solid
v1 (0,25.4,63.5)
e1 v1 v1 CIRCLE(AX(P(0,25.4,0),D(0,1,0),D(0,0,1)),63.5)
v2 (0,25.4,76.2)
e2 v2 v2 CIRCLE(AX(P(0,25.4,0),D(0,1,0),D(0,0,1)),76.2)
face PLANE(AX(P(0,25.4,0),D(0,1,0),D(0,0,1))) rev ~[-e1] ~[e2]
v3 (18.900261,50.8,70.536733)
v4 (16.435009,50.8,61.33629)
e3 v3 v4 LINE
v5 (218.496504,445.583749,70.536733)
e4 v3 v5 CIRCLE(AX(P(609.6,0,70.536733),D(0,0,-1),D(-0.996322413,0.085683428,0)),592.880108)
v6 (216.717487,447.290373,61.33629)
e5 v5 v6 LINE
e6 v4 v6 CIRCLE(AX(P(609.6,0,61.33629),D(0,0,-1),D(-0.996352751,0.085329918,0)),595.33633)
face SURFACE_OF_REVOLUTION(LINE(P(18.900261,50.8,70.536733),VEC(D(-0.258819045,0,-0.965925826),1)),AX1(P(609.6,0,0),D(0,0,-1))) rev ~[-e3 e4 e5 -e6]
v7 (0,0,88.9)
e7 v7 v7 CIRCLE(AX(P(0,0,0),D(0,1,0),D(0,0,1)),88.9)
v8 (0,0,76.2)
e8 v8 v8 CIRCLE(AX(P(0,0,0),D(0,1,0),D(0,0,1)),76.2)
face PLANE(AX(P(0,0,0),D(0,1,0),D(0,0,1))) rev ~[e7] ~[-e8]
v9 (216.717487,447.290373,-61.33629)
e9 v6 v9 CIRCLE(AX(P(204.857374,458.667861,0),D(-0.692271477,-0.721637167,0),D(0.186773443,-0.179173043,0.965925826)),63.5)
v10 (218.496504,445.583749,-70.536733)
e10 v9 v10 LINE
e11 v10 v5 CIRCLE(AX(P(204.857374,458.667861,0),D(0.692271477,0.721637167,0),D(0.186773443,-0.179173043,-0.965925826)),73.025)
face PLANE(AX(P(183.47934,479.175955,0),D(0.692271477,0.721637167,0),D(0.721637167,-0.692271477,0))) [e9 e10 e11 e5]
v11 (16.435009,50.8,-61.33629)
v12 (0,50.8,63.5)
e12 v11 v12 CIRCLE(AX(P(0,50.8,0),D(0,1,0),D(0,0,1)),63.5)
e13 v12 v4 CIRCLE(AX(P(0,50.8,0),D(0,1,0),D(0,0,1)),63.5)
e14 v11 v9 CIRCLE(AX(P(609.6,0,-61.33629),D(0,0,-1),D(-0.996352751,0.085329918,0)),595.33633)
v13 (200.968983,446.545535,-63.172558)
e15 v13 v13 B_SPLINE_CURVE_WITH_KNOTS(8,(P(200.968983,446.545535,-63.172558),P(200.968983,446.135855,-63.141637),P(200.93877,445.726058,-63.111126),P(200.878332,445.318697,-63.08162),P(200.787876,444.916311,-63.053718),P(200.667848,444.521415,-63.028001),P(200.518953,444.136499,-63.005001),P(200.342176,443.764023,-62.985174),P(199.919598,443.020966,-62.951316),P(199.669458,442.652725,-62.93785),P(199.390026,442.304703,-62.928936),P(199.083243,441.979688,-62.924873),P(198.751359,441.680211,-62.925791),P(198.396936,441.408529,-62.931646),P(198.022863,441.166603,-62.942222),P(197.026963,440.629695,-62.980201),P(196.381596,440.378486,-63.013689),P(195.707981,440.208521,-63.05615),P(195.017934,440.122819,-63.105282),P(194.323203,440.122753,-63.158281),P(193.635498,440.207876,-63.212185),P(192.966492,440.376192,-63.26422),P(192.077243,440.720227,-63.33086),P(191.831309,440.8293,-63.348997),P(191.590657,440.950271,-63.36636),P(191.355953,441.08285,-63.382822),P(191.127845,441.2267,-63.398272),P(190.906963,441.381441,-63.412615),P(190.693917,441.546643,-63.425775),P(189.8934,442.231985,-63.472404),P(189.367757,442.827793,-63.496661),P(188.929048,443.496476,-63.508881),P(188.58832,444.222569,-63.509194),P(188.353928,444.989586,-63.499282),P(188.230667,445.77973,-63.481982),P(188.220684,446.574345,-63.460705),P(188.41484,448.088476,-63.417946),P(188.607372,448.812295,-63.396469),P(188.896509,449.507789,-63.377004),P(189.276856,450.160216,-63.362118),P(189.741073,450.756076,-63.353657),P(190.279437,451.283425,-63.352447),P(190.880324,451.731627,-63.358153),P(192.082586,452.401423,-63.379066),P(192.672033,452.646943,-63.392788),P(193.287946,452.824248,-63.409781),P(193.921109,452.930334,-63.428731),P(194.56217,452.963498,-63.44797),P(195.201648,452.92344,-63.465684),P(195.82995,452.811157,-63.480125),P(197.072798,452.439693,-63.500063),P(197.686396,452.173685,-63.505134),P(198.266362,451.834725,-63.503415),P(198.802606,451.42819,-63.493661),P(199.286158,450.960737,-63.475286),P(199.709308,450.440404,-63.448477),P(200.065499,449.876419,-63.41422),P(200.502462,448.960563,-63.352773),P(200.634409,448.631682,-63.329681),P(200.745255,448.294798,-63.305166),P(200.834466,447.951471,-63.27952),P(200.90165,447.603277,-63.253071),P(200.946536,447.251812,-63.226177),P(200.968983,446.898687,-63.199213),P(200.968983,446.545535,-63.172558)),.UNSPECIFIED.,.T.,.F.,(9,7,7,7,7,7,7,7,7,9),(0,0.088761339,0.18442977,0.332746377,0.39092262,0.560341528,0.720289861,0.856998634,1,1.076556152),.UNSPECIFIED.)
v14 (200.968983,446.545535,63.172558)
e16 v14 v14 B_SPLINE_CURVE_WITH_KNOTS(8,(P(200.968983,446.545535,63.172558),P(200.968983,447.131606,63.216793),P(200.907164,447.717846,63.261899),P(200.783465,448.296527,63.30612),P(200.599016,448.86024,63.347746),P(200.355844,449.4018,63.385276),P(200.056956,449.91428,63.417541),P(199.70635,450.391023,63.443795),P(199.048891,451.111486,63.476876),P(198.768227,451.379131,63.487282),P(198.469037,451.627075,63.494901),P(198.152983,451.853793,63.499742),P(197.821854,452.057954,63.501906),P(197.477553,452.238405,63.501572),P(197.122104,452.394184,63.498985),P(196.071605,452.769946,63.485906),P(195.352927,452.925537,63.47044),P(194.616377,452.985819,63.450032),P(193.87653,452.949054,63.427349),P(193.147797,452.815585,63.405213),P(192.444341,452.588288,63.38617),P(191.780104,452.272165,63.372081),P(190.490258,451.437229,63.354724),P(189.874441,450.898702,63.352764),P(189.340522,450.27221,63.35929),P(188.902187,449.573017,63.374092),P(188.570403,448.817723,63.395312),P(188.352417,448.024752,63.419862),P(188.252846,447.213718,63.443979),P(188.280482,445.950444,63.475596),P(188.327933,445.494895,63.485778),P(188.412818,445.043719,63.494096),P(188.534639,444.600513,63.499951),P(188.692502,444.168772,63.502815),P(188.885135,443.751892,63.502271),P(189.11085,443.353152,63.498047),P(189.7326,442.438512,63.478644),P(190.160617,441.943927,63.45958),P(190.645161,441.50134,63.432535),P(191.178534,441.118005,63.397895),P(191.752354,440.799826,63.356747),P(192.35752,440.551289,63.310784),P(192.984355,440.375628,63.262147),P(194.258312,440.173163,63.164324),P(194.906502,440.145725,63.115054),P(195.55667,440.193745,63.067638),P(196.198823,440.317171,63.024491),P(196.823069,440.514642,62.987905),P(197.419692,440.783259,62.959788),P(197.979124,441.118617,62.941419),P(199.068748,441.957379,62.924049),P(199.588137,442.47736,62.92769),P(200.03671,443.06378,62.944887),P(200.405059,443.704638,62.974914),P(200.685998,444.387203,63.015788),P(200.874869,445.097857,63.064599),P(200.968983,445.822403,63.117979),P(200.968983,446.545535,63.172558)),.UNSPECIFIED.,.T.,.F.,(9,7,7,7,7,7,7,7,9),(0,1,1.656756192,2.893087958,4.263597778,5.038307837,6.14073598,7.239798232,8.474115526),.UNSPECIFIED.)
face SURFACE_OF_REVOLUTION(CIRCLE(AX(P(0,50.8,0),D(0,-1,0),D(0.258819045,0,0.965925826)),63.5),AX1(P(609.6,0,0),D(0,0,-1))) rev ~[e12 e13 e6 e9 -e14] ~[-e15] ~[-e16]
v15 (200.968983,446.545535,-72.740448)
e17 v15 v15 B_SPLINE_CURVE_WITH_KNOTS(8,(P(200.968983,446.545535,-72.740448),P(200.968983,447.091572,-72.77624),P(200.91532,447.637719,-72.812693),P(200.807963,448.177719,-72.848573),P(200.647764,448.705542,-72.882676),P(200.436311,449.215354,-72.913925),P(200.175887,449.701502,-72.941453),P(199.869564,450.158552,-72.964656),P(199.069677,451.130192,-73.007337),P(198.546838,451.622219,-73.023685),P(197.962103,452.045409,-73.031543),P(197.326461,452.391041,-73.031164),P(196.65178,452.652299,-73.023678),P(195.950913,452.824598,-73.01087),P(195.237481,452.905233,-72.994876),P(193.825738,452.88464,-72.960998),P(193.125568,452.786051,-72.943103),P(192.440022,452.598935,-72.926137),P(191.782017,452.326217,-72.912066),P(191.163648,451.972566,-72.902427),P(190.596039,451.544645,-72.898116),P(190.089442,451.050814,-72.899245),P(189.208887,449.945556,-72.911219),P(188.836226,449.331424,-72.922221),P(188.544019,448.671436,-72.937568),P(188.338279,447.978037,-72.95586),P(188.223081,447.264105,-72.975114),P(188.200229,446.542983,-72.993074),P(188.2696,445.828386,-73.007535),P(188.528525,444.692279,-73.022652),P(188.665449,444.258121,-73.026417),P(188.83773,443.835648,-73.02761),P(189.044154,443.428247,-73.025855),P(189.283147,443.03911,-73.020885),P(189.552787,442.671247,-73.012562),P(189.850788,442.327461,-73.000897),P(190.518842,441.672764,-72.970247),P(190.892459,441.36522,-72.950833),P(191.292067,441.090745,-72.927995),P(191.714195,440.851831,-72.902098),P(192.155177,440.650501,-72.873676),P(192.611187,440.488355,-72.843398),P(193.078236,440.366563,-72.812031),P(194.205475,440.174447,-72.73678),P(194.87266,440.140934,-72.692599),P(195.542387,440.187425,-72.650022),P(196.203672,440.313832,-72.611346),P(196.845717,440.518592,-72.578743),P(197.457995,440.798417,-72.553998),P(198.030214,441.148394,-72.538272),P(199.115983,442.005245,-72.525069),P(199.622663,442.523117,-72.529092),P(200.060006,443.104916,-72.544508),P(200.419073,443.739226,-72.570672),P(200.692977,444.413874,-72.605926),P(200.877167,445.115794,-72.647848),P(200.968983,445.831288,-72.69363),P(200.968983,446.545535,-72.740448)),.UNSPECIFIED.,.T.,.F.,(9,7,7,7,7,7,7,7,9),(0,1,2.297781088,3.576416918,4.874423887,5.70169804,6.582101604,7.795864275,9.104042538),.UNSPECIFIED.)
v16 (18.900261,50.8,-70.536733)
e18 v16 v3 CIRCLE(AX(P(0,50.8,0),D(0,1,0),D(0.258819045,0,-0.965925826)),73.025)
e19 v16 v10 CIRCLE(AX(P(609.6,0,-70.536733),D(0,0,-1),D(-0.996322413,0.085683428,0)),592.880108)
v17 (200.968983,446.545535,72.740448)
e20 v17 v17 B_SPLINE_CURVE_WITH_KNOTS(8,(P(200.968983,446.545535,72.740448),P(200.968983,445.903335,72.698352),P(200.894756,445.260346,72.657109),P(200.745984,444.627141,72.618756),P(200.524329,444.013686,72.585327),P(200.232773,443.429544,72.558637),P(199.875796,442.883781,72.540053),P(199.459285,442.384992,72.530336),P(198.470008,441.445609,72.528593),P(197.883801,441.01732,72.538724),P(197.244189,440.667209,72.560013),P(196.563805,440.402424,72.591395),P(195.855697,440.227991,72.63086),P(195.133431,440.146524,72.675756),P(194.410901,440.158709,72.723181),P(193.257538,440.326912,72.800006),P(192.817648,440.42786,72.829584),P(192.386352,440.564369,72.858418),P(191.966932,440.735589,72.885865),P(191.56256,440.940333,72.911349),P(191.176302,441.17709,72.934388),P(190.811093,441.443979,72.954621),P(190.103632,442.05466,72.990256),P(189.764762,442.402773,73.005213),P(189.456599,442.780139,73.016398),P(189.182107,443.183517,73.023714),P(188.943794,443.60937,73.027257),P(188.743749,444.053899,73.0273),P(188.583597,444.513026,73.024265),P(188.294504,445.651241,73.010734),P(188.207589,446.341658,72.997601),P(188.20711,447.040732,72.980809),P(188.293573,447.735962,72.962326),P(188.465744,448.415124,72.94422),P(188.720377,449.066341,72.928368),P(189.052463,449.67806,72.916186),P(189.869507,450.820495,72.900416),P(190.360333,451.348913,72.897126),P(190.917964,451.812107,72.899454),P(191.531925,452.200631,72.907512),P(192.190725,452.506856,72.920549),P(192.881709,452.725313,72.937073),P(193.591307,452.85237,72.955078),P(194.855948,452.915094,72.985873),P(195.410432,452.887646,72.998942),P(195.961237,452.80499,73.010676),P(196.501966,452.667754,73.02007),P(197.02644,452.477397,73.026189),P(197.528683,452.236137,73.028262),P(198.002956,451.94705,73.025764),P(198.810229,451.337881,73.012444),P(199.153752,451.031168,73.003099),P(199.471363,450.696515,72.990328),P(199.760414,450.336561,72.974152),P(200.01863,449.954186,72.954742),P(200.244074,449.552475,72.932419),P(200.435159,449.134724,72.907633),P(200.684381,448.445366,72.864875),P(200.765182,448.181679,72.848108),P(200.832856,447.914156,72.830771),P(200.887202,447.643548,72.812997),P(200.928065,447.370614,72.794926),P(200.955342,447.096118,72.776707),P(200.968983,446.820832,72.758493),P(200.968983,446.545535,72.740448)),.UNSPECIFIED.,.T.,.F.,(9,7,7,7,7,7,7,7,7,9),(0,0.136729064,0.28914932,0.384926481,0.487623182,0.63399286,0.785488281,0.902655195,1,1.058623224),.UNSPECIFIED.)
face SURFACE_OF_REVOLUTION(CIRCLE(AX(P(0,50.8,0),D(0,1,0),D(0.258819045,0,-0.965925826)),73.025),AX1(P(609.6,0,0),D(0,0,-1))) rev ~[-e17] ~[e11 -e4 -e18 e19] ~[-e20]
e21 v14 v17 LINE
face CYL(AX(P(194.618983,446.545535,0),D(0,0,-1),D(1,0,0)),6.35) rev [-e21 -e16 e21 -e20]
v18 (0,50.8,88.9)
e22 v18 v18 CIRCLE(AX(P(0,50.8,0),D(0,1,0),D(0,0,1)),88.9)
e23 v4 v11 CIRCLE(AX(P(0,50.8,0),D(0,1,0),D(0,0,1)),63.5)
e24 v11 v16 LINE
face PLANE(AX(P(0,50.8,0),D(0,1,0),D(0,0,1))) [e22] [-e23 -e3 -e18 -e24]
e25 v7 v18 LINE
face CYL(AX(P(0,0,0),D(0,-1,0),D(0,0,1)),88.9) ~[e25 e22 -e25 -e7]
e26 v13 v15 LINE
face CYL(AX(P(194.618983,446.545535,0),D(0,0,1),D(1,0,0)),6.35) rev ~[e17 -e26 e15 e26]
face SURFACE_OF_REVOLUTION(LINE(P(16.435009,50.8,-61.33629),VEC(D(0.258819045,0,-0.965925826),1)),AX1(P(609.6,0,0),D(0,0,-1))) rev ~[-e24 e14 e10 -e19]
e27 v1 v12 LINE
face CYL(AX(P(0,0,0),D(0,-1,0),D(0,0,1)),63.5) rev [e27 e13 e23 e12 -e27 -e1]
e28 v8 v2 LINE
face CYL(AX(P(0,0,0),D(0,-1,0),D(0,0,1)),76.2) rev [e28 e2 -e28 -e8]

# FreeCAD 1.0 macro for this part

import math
import FreeCAD as App
import Part
import Sketcher
from FreeCAD import Vector
Q = App.Units.Quantity

doc = App.newDocument("Part")
body = doc.addObject("PartDesign::Body", "Body")

# Sketch on XZ plane
sketch1 = doc.addObject("Sketcher::SketchObject", "Sketch")
body.addObject(sketch1)
sketch1.AttachmentSupport = (doc.XZ_Plane, [""])
sketch1.MapMode = "FlatFace"
sketch1.addGeometry(Part.Circle(Vector(0, 0, 0), Vector(0, 0, 1), 88.9), False)
sketch1.addGeometry(Part.Circle(Vector(0, 0, 0), Vector(0, 0, 1), 63.5), False)
sketch1.addConstraint(Sketcher.Constraint("Coincident", 0, 3, -1, 1))
sketch1.addConstraint(Sketcher.Constraint("Coincident", 1, 3, -1, 1))
sketch1.addConstraint(Sketcher.Constraint("Diameter", 0, Q("7 in")))
sketch1.addConstraint(Sketcher.Constraint("Diameter", 1, Q("5 in")))
pad1 = doc.addObject("PartDesign::Pad", "Pad")
body.addObject(pad1)
pad1.Profile = sketch1
pad1.Length = Q("2 in")
pad1.Reversed = True

# Sketch on XZ plane
sketch2 = doc.addObject("Sketcher::SketchObject", "Sketch001")
body.addObject(sketch2)
sketch2.AttachmentSupport = (doc.XZ_Plane, [""])
sketch2.MapMode = "FlatFace"
sketch2.addGeometry(Part.Circle(Vector(0, 0, 0), Vector(0, 0, 1), 76.2), False)
sketch2.addGeometry(Part.Circle(Vector(0, 0, 0), Vector(0, 0, 1), 63.5), False)
sketch2.addConstraint(Sketcher.Constraint("Coincident", 0, 3, -1, 1))
sketch2.addConstraint(Sketcher.Constraint("Coincident", 1, 3, -1, 1))
sketch2.addConstraint(Sketcher.Constraint("Diameter", 0, Q("6 in")))
sketch2.addConstraint(Sketcher.Constraint("Diameter", 1, Q("5 in")))
pocket1 = doc.addObject("PartDesign::Pocket", "Pocket")
body.addObject(pocket1)
pocket1.Profile = sketch2
pocket1.Length = Q("1 in")

# Sketch on XZ plane
sketch3 = doc.addObject("Sketcher::SketchObject", "Sketch002")
body.addObject(sketch3)
sketch3.AttachmentSupport = (doc.XZ_Plane, [""])
sketch3.MapMode = "FlatFace"
sketch3.AttachmentOffset = App.Placement(Vector(0, 0, -2 * 25.4), App.Rotation())
sketch3.addGeometry(Part.LineSegment(Vector(16.435009, -61.33629, 0), Vector(18.900261, -70.536733, 0)), False)
sketch3.addGeometry(Part.ArcOfCircle(Part.Circle(Vector(0, 0, 0), Vector(0, 0, 1), 73.025), math.radians(75), math.radians(285)), False)
sketch3.addGeometry(Part.LineSegment(Vector(18.900261, 70.536733, 0), Vector(16.435009, 61.33629, 0)), False)
sketch3.addGeometry(Part.ArcOfCircle(Part.Circle(Vector(0, 0, 0), Vector(0, 0, 1), 63.5), math.radians(75), math.radians(285)), False)
sketch3.addConstraint(Sketcher.Constraint("Coincident", 0, 2, 1, 2))
sketch3.addConstraint(Sketcher.Constraint("Coincident", 1, 1, 2, 1))
sketch3.addConstraint(Sketcher.Constraint("Coincident", 2, 2, 3, 1))
sketch3.addConstraint(Sketcher.Constraint("Coincident", 3, 2, 0, 1))
sketch3.addConstraint(Sketcher.Constraint("Coincident", 1, 3, -1, 1))
sketch3.addConstraint(Sketcher.Constraint("Coincident", 3, 3, -1, 1))
sketch3.addConstraint(Sketcher.Constraint("Vertical", 0, 2, 1, 1))
sketch3.addConstraint(Sketcher.Constraint("Vertical", 2, 2, 3, 2))
sketch3.addConstraint(Sketcher.Constraint("Radius", 3, Q("2.5 in")))
sketch3.addConstraint(Sketcher.Constraint("Angle", 0, Q("-75 deg")))
sketch3.addConstraint(Sketcher.Constraint("Radius", 1, Q("2.875 in")))
sketch3.addConstraint(Sketcher.Constraint("DistanceX", -1, 1, 0, 2, Q("18.900261 mm")))

# Sketch on XY plane
sketch4 = doc.addObject("Sketcher::SketchObject", "Sketch003")
body.addObject(sketch4)
sketch4.AttachmentSupport = (doc.XY_Plane, [""])
sketch4.MapMode = "FlatFace"
sketch4.addGeometry(Part.ArcOfCircle(Part.Circle(Vector(609.6, 0, 0), Vector(0, 0, 1), 609.6), math.radians(131.409622), math.radians(175.219808)), False)
sketch4.addConstraint(Sketcher.Constraint("PointOnObject", 0, 3, -1))
sketch4.addConstraint(Sketcher.Constraint("Radius", 0, Q("24 in")))
sketch4.addConstraint(Sketcher.Constraint("DistanceX", -1, 1, 0, 3, Q("24 in")))
sketch4.addConstraint(Sketcher.Constraint("DistanceY", -1, 1, 0, 1, Q("18 in")))
sketch4.addConstraint(Sketcher.Constraint("DistanceY", -1, 1, 0, 2, Q("2 in")))
doc.recompute()

additivepipe = doc.addObject("PartDesign::AdditivePipe", "AdditivePipe")
body.addObject(additivepipe)
additivepipe.Profile = sketch3
additivepipe.Spine = (sketch4, ["Edge1"])

# Sketch on XY plane
sketch5 = doc.addObject("Sketcher::SketchObject", "Sketch004")
body.addObject(sketch5)
sketch5.AttachmentSupport = (doc.XY_Plane, [""])
sketch5.MapMode = "FlatFace"
sketch5.addGeometry(Part.Circle(Vector(194.618983, 446.545535, 0), Vector(0, 0, 1), 6.35), False)
sketch5.addConstraint(Sketcher.Constraint("Diameter", 0, Q("0.5 in")))
sketch5.addConstraint(Sketcher.Constraint("DistanceX", -1, 1, 0, 3, Q("194.618983 mm")))
sketch5.addConstraint(Sketcher.Constraint("DistanceY", -1, 1, 0, 3, Q("446.545535 mm")))
pocket2 = doc.addObject("PartDesign::Pocket", "Pocket001")
body.addObject(pocket2)
pocket2.Profile = sketch5
pocket2.Type = "ThroughAll"
pocket2.Midplane = True

doc.recompute()
